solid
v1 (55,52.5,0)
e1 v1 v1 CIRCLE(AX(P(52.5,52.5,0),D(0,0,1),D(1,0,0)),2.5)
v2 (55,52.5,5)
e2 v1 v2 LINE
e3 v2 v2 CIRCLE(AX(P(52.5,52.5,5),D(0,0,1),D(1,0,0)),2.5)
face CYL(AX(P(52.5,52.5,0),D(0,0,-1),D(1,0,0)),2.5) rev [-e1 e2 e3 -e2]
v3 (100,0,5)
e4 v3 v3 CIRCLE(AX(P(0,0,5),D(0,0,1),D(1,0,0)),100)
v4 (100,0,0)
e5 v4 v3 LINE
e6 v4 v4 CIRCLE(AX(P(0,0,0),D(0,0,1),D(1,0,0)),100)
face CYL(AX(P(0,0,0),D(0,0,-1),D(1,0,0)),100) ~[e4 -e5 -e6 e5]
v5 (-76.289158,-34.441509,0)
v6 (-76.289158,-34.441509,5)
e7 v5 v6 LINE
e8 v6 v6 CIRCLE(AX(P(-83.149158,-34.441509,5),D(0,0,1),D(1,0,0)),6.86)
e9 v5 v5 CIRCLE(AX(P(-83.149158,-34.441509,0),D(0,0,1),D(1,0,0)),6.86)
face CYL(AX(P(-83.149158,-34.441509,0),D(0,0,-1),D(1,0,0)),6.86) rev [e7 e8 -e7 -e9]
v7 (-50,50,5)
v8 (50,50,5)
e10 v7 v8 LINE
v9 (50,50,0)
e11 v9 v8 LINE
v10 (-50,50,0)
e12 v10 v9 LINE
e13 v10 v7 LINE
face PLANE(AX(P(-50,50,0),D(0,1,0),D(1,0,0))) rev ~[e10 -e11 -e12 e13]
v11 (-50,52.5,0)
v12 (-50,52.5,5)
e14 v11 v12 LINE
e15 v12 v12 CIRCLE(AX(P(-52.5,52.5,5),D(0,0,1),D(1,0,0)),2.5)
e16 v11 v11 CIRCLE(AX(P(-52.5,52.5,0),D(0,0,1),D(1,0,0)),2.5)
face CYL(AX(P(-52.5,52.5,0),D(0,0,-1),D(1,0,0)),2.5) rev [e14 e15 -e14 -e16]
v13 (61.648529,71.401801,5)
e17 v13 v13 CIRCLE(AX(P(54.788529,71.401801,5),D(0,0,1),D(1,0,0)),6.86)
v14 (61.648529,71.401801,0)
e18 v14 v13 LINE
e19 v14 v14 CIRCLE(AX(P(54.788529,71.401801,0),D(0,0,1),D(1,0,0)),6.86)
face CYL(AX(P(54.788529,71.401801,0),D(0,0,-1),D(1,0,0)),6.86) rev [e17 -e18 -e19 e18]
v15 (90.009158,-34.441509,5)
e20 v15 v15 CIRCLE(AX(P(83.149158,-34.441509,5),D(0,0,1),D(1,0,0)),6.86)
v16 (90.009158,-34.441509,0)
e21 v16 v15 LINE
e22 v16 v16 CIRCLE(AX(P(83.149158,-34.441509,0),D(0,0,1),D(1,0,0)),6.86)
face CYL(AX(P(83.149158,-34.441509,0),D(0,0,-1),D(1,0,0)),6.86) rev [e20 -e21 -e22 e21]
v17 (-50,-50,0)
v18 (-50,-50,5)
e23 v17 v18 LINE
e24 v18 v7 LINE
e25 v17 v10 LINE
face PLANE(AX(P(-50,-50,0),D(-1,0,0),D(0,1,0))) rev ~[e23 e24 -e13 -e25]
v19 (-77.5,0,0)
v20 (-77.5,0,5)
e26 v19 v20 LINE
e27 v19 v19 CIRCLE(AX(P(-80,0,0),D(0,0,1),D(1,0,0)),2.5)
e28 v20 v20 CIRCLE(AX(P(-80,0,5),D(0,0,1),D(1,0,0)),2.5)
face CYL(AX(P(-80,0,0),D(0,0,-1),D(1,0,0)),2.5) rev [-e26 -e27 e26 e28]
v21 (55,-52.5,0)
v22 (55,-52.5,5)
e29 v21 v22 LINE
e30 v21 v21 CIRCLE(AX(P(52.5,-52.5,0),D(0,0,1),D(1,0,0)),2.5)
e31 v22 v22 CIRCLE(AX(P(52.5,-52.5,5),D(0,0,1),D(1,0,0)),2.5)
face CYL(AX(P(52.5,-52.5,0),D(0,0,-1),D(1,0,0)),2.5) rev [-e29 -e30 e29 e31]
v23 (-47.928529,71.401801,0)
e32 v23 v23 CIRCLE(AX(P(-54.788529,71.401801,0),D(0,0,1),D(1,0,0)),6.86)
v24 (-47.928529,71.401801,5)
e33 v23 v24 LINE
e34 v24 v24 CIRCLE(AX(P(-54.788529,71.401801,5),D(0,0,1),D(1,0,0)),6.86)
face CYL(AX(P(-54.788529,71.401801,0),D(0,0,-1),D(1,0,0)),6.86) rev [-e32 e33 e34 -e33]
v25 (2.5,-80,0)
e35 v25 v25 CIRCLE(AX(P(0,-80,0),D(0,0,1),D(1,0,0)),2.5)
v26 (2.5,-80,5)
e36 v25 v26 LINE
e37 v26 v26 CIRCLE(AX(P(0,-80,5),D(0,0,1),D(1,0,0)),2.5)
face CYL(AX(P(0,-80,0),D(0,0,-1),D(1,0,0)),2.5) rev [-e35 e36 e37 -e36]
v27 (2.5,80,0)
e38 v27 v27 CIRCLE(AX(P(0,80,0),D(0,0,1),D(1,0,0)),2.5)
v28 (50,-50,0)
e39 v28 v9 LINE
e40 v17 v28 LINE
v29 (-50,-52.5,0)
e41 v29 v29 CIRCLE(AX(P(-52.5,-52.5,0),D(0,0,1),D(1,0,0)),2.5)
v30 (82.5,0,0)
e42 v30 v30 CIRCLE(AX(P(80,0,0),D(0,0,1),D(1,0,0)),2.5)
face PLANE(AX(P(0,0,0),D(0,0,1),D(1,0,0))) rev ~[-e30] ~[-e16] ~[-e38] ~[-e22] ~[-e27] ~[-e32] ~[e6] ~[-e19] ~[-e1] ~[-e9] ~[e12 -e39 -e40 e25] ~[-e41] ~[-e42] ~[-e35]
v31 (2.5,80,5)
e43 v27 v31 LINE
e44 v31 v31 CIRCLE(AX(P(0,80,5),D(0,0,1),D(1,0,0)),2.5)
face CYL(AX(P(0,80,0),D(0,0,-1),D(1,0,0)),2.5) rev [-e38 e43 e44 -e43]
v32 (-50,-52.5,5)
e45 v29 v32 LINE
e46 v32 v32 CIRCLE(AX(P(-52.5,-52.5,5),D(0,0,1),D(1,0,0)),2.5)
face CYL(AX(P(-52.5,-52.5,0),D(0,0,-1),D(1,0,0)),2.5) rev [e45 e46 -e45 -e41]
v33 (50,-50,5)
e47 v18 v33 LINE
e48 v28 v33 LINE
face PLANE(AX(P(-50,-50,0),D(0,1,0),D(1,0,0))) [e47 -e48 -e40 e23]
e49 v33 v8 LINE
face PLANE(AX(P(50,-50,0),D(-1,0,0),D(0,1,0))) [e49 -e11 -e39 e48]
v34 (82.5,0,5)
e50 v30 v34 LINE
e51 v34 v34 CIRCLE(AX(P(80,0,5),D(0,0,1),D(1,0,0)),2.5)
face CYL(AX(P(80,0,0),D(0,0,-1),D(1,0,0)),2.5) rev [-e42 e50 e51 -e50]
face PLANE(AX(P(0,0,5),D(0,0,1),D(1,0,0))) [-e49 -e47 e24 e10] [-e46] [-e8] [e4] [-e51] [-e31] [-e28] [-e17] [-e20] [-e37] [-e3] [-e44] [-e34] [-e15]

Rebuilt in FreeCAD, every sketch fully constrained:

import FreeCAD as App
import Part
import Sketcher

V = App.Vector

doc = App.newDocument("Part")
body = doc.addObject("PartDesign::Body", "Body")

# Sketch on XY plane
sketch1 = body.newObject("Sketcher::SketchObject", "Sketch")
sketch1.AttachmentSupport = (doc.getObject("XY_Plane"), [""])
sketch1.MapMode = "FlatFace"
sketch1.addGeometry(Part.Circle(V(0, 0, 0), V(0, 0, 1), 100), False)
sketch1.addGeometry(Part.Circle(V(-52.5, -52.5, 0), V(0, 0, 1), 2.5), False)
sketch1.addGeometry(Part.Circle(V(0, -80, 0), V(0, 0, 1), 2.5), False)
sketch1.addGeometry(Part.Circle(V(-83.1, -34.4, 0), V(0, 0, 1), 6.9), False)
sketch1.addGeometry(Part.Circle(V(52.5, -52.5, 0), V(0, 0, 1), 2.5), False)
sketch1.addGeometry(Part.Circle(V(83.1, -34.4, 0), V(0, 0, 1), 6.9), False)
sketch1.addGeometry(Part.Circle(V(-80, 0, 0), V(0, 0, 1), 2.5), False)
sketch1.addGeometry(Part.LineSegment(V(50, -50, 0), V(-50, -50, 0)), False)
sketch1.addGeometry(Part.LineSegment(V(-50, -50, 0), V(-50, 50, 0)), False)
sketch1.addGeometry(Part.LineSegment(V(-50, 50, 0), V(50, 50, 0)), False)
sketch1.addGeometry(Part.LineSegment(V(50, 50, 0), V(50, -50, 0)), False)
sketch1.addGeometry(Part.Circle(V(-52.5, 52.5, 0), V(0, 0, 1), 2.5), False)
sketch1.addGeometry(Part.Circle(V(-54.8, 71.4, 0), V(0, 0, 1), 6.9), False)
sketch1.addGeometry(Part.Circle(V(0, 80, 0), V(0, 0, 1), 2.5), False)
sketch1.addGeometry(Part.Circle(V(80, 0, 0), V(0, 0, 1), 2.5), False)
sketch1.addGeometry(Part.Circle(V(52.5, 52.5, 0), V(0, 0, 1), 2.5), False)
sketch1.addGeometry(Part.Circle(V(54.8, 71.4, 0), V(0, 0, 1), 6.9), False)
sketch1.addConstraint(Sketcher.Constraint("Coincident", 7, 2, 8, 1))
sketch1.addConstraint(Sketcher.Constraint("Coincident", 8, 2, 9, 1))
sketch1.addConstraint(Sketcher.Constraint("Coincident", 9, 2, 10, 1))
sketch1.addConstraint(Sketcher.Constraint("Coincident", 10, 2, 7, 1))
sketch1.addConstraint(Sketcher.Constraint("Horizontal", 7))
sketch1.addConstraint(Sketcher.Constraint("Vertical", 8))
sketch1.addConstraint(Sketcher.Constraint("Horizontal", 9))
sketch1.addConstraint(Sketcher.Constraint("Vertical", 10))
sketch1.addConstraint(Sketcher.Constraint("Coincident", 0, 3, -1, 1))
sketch1.addConstraint(Sketcher.Constraint("Equal", 1, 2))
sketch1.addConstraint(Sketcher.Constraint("Equal", 2, 4))
sketch1.addConstraint(Sketcher.Constraint("Equal", 3, 5))
sketch1.addConstraint(Sketcher.Constraint("Equal", 4, 6))
sketch1.addConstraint(Sketcher.Constraint("Equal", 6, 11))
sketch1.addConstraint(Sketcher.Constraint("Equal", 5, 12))
sketch1.addConstraint(Sketcher.Constraint("Equal", 11, 13))
sketch1.addConstraint(Sketcher.Constraint("Equal", 13, 14))
sketch1.addConstraint(Sketcher.Constraint("Equal", 14, 15))
sketch1.addConstraint(Sketcher.Constraint("Equal", 12, 16))
sketch1.addConstraint(Sketcher.Constraint("Symmetric", 4, 3, 11, 3, -1, 1))
sketch1.addConstraint(Sketcher.Constraint("Symmetric", 2, 3, 13, 3, -1, 1))
sketch1.addConstraint(Sketcher.Constraint("Symmetric", 6, 3, 14, 3, -1, 1))
sketch1.addConstraint(Sketcher.Constraint("Symmetric", 1, 3, 15, 3, -1, 1))
sketch1.addConstraint(Sketcher.Constraint("Symmetric", 7, 2, 9, 2, -1, 1))
sketch1.addConstraint(Sketcher.Constraint("Symmetric", 1, 3, 4, 3, -2))
sketch1.addConstraint(Sketcher.Constraint("Symmetric", 3, 3, 5, 3, -2))
sketch1.addConstraint(Sketcher.Constraint("Symmetric", 12, 3, 16, 3, -2))
sketch1.addConstraint(Sketcher.Constraint("PointOnObject", 2, 3, -2))
sketch1.addConstraint(Sketcher.Constraint("PointOnObject", 6, 3, -1))
sketch1.addConstraint(Sketcher.Constraint("Equal", 9, 8))
sketch1.addConstraint(Sketcher.Constraint("Diameter", 0, 200.0))
sketch1.addConstraint(Sketcher.Constraint("Diameter", 1, 5.0))
sketch1.addConstraint(Sketcher.Constraint("Diameter", 3, 13.72))
sketch1.addConstraint(Sketcher.Constraint("DistanceX", 7, 2, 7, 1, 100.0))
sketch1.addConstraint(Sketcher.Constraint("DistanceY", 2, 3, -1, 1, 80.0))
sketch1.addConstraint(Sketcher.Constraint("DistanceX", 6, 3, -1, 1, 80.0))
sketch1.addConstraint(Sketcher.Constraint("DistanceX", 1, 3, 4, 3, 105.0))
sketch1.addConstraint(Sketcher.Constraint("DistanceY", 1, 3, 11, 3, 105.0))
sketch1.addConstraint(Sketcher.Constraint("DistanceY", -1, 1, 12, 3, 71.401801))
sketch1.addConstraint(Sketcher.Constraint("DistanceX", 3, 3, -1, 1, 83.149158))
sketch1.addConstraint(Sketcher.Constraint("DistanceY", 3, 3, -1, 1, 34.441509))
sketch1.addConstraint(Sketcher.Constraint("DistanceX", 12, 3, -1, 1, 54.788529))
pad1 = body.newObject("PartDesign::Pad", "Pad")
pad1.Profile = sketch1
pad1.Length = 5

doc.recompute()
